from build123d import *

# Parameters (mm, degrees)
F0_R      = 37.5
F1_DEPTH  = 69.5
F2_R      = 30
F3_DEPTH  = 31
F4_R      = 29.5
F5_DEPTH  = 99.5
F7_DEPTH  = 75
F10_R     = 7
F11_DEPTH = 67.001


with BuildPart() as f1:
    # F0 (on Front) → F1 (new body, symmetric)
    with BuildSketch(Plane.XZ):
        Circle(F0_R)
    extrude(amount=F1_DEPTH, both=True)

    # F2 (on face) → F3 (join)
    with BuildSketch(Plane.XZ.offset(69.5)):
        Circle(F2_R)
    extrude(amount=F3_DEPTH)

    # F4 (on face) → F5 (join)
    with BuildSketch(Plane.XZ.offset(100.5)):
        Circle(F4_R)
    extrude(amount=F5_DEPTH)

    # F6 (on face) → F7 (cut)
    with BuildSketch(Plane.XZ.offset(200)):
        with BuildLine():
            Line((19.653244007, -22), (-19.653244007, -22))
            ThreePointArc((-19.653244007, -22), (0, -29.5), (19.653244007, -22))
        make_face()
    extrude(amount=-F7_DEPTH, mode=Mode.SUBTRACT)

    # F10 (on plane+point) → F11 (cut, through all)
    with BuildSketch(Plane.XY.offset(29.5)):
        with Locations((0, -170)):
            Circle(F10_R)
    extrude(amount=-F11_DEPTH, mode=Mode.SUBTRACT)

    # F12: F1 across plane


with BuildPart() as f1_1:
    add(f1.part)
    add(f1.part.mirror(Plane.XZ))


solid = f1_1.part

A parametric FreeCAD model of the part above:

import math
import FreeCAD as App
import Part
import Sketcher
from FreeCAD import Vector

doc = App.newDocument("Part")
params = doc.addObject("Spreadsheet::Sheet", "Params")
for row, (alias, value) in enumerate([
    ("sketch1_diameter", "75 mm"),
    ("pad1_length", "139 mm"),
    ("sketch2_diameter", "60 mm"),
    ("pad2_length", "31 mm"),
    ("sketch3_diameter", "59 mm"),
    ("pad3_length", "99.5 mm"),
    ("sketch4_radius", "29.5 mm"),
    ("pocket1_length", "75 mm"),
    ("sketch5_diameter", "14 mm"),
], start=1):
    params.set(f"A{row}", alias)
    params.set(f"B{row}", "=" + value)
    params.setAlias(f"B{row}", alias)

body = doc.addObject("PartDesign::Body", "Body")

sketch1 = doc.addObject("Sketcher::SketchObject", "Sketch")
body.addObject(sketch1)
sketch1.AttachmentSupport = (doc.XZ_Plane, [""])
sketch1.MapMode = "FlatFace"
sketch1.addGeometry(Part.Circle(Vector(0, 0, 0), Vector(0, 0, 1), 38), False)
sketch1.addConstraint([
    Sketcher.Constraint("Coincident", 0, 3, -1, 1),
    Sketcher.Constraint("Diameter", 0, 75.0),
])
sketch1.setExpression("Constraints[1]", "Params.sketch1_diameter")
pad1 = doc.addObject("PartDesign::Pad", "Pad")
body.addObject(pad1)
pad1.Profile = sketch1
pad1.setExpression("Length", "Params.pad1_length")
pad1.Midplane = True

sketch2 = doc.addObject("Sketcher::SketchObject", "Sketch001")
body.addObject(sketch2)
sketch2.AttachmentSupport = (doc.XZ_Plane, [""])
sketch2.MapMode = "FlatFace"
sketch2.AttachmentOffset = App.Placement(Vector(0, 0, 69.5), App.Rotation())
sketch2.addGeometry(Part.Circle(Vector(0, 0, 0), Vector(0, 0, 1), 30), False)
sketch2.addConstraint([
    Sketcher.Constraint("Coincident", 0, 3, -1, 1),
    Sketcher.Constraint("Diameter", 0, 60.0),
])
sketch2.setExpression("Constraints[1]", "Params.sketch2_diameter")
pad2 = doc.addObject("PartDesign::Pad", "Pad001")
body.addObject(pad2)
pad2.Profile = sketch2
pad2.setExpression("Length", "Params.pad2_length")

sketch3 = doc.addObject("Sketcher::SketchObject", "Sketch002")
body.addObject(sketch3)
sketch3.AttachmentSupport = (doc.XZ_Plane, [""])
sketch3.MapMode = "FlatFace"
sketch3.AttachmentOffset = App.Placement(Vector(0, 0, 100.5), App.Rotation())
sketch3.addGeometry(Part.Circle(Vector(0, 0, 0), Vector(0, 0, 1), 30), False)
sketch3.addConstraint([
    Sketcher.Constraint("Coincident", 0, 3, -1, 1),
    Sketcher.Constraint("Diameter", 0, 59.0),
])
sketch3.setExpression("Constraints[1]", "Params.sketch3_diameter")
pad3 = doc.addObject("PartDesign::Pad", "Pad002")
body.addObject(pad3)
pad3.Profile = sketch3
pad3.setExpression("Length", "Params.pad3_length")

sketch4 = doc.addObject("Sketcher::SketchObject", "Sketch003")
body.addObject(sketch4)
sketch4.AttachmentSupport = (doc.XZ_Plane, [""])
sketch4.MapMode = "FlatFace"
sketch4.AttachmentOffset = App.Placement(Vector(0, 0, 200), App.Rotation())
sketch4.addGeometry([
    Part.LineSegment(Vector(20, -22, 0), Vector(-20, -22, 0)),
    Part.ArcOfCircle(Part.Circle(Vector(0, 0, 0), Vector(0, 0, 1), 30), math.radians(-132), math.radians(-48)),
], False)
sketch4.addConstraint([
    Sketcher.Constraint("Coincident", 0, 1, 1, 2),
    Sketcher.Constraint("Coincident", 1, 1, 0, 2),
    Sketcher.Constraint("Horizontal", 0),
    Sketcher.Constraint("Coincident", 1, 3, -1, 1),
    Sketcher.Constraint("Radius", 1, 29.5),
    Sketcher.Constraint("DistanceY", 0, 1, -1, 1, 22.0),
])
sketch4.setExpression("Constraints[4]", "Params.sketch4_radius")
pocket1 = doc.addObject("PartDesign::Pocket", "Pocket")
body.addObject(pocket1)
pocket1.Profile = sketch4
pocket1.setExpression("Length", "Params.pocket1_length")

sketch5 = doc.addObject("Sketcher::SketchObject", "Sketch004")
body.addObject(sketch5)
sketch5.AttachmentSupport = (doc.XY_Plane, [""])
sketch5.MapMode = "FlatFace"
sketch5.AttachmentOffset = App.Placement(Vector(0, 0, 29.5), App.Rotation())
sketch5.addGeometry(Part.Circle(Vector(0, -170, 0), Vector(0, 0, 1), 7), False)
sketch5.addConstraint([
    Sketcher.Constraint("PointOnObject", 0, 3, -2),
    Sketcher.Constraint("Diameter", 0, 14.0),
    Sketcher.Constraint("DistanceY", 0, 3, -1, 1, 170.0),
])
sketch5.setExpression("Constraints[1]", "Params.sketch5_diameter")
pocket2 = doc.addObject("PartDesign::Pocket", "Pocket001")
body.addObject(pocket2)
pocket2.Profile = sketch5
pocket2.Type = "ThroughAll"
body2 = doc.addObject("PartDesign::Body", "Body001")
doc.recompute()

body2.BaseFeature = body
doc.recompute()

mirroring = doc.addObject("Part::Mirroring", "Mirroring")
mirroring.Source = body
mirroring.Base = Vector(0, 0, 0)
mirroring.Normal = Vector(0, -1, 0)
body3 = doc.addObject("PartDesign::Body", "Body002")
body3.BaseFeature = mirroring
boolean = doc.addObject("PartDesign::Boolean", "Boolean")
body2.addObject(boolean)
boolean.Type = "Fuse"
boolean.addObjects([body3])
doc.recompute()
mirroring.Visibility = False

doc.recompute()
